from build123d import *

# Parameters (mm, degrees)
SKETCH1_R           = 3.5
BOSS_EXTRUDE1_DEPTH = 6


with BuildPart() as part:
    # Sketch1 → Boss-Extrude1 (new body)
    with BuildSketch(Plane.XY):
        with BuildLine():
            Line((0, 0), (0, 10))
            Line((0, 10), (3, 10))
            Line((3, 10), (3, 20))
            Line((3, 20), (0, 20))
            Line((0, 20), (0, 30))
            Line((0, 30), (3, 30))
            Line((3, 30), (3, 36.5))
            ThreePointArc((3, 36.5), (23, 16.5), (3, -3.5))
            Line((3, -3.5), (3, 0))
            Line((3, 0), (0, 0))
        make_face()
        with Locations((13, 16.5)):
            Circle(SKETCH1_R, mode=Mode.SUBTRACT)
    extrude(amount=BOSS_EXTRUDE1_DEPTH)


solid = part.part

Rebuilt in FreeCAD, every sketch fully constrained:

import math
import FreeCAD as App
import Part
import Sketcher

V = App.Vector

doc = App.newDocument("Part")
body = doc.addObject("PartDesign::Body", "Body")

sketch1 = body.newObject("Sketcher::SketchObject", "Sketch")
sketch1.AttachmentSupport = (doc.getObject("XY_Plane"), [""])
sketch1.MapMode = "FlatFace"
sketch1.addGeometry([
    Part.LineSegment(V(0, 10, 0), V(0, 0, 0)),
    Part.LineSegment(V(0, 0, 0), V(3, 0, 0)),
    Part.LineSegment(V(3, 0, 0), V(3, -3.5, 0)),
    Part.ArcOfCircle(Part.Circle(V(3, 16.5, 0), V(0, 0, 1), 20), math.radians(-90), math.radians(90)),
    Part.LineSegment(V(3, 36.5, 0), V(3, 30, 0)),
    Part.LineSegment(V(3, 30, 0), V(0, 30, 0)),
    Part.LineSegment(V(0, 30, 0), V(0, 20, 0)),
    Part.LineSegment(V(0, 20, 0), V(3, 20, 0)),
    Part.LineSegment(V(3, 20, 0), V(3, 10, 0)),
    Part.LineSegment(V(3, 10, 0), V(0, 10, 0)),
    Part.Circle(V(13, 16.5, 0), V(0, 0, 1), 3.5),
], False)
sketch1.addConstraint([
    Sketcher.Constraint("Coincident", 0, 2, 1, 1),
    Sketcher.Constraint("Coincident", 1, 2, 2, 1),
    Sketcher.Constraint("Coincident", 2, 2, 3, 1),
    Sketcher.Constraint("Coincident", 3, 2, 4, 1),
    Sketcher.Constraint("Coincident", 4, 2, 5, 1),
    Sketcher.Constraint("Coincident", 5, 2, 6, 1),
    Sketcher.Constraint("Coincident", 6, 2, 7, 1),
    Sketcher.Constraint("Coincident", 7, 2, 8, 1),
    Sketcher.Constraint("Coincident", 8, 2, 9, 1),
    Sketcher.Constraint("Coincident", 9, 2, 0, 1),
    Sketcher.Constraint("Vertical", 0),
    Sketcher.Constraint("Horizontal", 1),
    Sketcher.Constraint("Vertical", 2),
    Sketcher.Constraint("Vertical", 4),
    Sketcher.Constraint("Horizontal", 5),
    Sketcher.Constraint("Vertical", 6),
    Sketcher.Constraint("Horizontal", 7),
    Sketcher.Constraint("Vertical", 8),
    Sketcher.Constraint("Horizontal", 9),
    Sketcher.Constraint("Coincident", 0, 2, -1, 1),
    Sketcher.Constraint("PointOnObject", 5, 2, -2),
    Sketcher.Constraint("Horizontal", 3, 3, 10, 3),
    Sketcher.Constraint("Vertical", 3, 3, 1, 2),
    Sketcher.Constraint("Vertical", 2, 2, 3, 2),
    Sketcher.Constraint("Vertical", 4, 2, 7, 2),
    Sketcher.Constraint("Equal", 0, 6),
    Sketcher.Constraint("Equal", 6, 8),
    Sketcher.Constraint("Diameter", 10, 7.0),
    Sketcher.Constraint("Radius", 3, 20.0),
    Sketcher.Constraint("DistanceX", 1, 1, 1, 2, 3.0),
    Sketcher.Constraint("DistanceY", 0, 2, 0, 1, 10.0),
    Sketcher.Constraint("DistanceY", 2, 2, 2, 1, 3.5),
    Sketcher.Constraint("DistanceX", -1, 1, 10, 3, 13.0),
])
pad1 = body.newObject("PartDesign::Pad", "Pad")
pad1.Profile = sketch1
pad1.Length = 6

doc.recompute()
